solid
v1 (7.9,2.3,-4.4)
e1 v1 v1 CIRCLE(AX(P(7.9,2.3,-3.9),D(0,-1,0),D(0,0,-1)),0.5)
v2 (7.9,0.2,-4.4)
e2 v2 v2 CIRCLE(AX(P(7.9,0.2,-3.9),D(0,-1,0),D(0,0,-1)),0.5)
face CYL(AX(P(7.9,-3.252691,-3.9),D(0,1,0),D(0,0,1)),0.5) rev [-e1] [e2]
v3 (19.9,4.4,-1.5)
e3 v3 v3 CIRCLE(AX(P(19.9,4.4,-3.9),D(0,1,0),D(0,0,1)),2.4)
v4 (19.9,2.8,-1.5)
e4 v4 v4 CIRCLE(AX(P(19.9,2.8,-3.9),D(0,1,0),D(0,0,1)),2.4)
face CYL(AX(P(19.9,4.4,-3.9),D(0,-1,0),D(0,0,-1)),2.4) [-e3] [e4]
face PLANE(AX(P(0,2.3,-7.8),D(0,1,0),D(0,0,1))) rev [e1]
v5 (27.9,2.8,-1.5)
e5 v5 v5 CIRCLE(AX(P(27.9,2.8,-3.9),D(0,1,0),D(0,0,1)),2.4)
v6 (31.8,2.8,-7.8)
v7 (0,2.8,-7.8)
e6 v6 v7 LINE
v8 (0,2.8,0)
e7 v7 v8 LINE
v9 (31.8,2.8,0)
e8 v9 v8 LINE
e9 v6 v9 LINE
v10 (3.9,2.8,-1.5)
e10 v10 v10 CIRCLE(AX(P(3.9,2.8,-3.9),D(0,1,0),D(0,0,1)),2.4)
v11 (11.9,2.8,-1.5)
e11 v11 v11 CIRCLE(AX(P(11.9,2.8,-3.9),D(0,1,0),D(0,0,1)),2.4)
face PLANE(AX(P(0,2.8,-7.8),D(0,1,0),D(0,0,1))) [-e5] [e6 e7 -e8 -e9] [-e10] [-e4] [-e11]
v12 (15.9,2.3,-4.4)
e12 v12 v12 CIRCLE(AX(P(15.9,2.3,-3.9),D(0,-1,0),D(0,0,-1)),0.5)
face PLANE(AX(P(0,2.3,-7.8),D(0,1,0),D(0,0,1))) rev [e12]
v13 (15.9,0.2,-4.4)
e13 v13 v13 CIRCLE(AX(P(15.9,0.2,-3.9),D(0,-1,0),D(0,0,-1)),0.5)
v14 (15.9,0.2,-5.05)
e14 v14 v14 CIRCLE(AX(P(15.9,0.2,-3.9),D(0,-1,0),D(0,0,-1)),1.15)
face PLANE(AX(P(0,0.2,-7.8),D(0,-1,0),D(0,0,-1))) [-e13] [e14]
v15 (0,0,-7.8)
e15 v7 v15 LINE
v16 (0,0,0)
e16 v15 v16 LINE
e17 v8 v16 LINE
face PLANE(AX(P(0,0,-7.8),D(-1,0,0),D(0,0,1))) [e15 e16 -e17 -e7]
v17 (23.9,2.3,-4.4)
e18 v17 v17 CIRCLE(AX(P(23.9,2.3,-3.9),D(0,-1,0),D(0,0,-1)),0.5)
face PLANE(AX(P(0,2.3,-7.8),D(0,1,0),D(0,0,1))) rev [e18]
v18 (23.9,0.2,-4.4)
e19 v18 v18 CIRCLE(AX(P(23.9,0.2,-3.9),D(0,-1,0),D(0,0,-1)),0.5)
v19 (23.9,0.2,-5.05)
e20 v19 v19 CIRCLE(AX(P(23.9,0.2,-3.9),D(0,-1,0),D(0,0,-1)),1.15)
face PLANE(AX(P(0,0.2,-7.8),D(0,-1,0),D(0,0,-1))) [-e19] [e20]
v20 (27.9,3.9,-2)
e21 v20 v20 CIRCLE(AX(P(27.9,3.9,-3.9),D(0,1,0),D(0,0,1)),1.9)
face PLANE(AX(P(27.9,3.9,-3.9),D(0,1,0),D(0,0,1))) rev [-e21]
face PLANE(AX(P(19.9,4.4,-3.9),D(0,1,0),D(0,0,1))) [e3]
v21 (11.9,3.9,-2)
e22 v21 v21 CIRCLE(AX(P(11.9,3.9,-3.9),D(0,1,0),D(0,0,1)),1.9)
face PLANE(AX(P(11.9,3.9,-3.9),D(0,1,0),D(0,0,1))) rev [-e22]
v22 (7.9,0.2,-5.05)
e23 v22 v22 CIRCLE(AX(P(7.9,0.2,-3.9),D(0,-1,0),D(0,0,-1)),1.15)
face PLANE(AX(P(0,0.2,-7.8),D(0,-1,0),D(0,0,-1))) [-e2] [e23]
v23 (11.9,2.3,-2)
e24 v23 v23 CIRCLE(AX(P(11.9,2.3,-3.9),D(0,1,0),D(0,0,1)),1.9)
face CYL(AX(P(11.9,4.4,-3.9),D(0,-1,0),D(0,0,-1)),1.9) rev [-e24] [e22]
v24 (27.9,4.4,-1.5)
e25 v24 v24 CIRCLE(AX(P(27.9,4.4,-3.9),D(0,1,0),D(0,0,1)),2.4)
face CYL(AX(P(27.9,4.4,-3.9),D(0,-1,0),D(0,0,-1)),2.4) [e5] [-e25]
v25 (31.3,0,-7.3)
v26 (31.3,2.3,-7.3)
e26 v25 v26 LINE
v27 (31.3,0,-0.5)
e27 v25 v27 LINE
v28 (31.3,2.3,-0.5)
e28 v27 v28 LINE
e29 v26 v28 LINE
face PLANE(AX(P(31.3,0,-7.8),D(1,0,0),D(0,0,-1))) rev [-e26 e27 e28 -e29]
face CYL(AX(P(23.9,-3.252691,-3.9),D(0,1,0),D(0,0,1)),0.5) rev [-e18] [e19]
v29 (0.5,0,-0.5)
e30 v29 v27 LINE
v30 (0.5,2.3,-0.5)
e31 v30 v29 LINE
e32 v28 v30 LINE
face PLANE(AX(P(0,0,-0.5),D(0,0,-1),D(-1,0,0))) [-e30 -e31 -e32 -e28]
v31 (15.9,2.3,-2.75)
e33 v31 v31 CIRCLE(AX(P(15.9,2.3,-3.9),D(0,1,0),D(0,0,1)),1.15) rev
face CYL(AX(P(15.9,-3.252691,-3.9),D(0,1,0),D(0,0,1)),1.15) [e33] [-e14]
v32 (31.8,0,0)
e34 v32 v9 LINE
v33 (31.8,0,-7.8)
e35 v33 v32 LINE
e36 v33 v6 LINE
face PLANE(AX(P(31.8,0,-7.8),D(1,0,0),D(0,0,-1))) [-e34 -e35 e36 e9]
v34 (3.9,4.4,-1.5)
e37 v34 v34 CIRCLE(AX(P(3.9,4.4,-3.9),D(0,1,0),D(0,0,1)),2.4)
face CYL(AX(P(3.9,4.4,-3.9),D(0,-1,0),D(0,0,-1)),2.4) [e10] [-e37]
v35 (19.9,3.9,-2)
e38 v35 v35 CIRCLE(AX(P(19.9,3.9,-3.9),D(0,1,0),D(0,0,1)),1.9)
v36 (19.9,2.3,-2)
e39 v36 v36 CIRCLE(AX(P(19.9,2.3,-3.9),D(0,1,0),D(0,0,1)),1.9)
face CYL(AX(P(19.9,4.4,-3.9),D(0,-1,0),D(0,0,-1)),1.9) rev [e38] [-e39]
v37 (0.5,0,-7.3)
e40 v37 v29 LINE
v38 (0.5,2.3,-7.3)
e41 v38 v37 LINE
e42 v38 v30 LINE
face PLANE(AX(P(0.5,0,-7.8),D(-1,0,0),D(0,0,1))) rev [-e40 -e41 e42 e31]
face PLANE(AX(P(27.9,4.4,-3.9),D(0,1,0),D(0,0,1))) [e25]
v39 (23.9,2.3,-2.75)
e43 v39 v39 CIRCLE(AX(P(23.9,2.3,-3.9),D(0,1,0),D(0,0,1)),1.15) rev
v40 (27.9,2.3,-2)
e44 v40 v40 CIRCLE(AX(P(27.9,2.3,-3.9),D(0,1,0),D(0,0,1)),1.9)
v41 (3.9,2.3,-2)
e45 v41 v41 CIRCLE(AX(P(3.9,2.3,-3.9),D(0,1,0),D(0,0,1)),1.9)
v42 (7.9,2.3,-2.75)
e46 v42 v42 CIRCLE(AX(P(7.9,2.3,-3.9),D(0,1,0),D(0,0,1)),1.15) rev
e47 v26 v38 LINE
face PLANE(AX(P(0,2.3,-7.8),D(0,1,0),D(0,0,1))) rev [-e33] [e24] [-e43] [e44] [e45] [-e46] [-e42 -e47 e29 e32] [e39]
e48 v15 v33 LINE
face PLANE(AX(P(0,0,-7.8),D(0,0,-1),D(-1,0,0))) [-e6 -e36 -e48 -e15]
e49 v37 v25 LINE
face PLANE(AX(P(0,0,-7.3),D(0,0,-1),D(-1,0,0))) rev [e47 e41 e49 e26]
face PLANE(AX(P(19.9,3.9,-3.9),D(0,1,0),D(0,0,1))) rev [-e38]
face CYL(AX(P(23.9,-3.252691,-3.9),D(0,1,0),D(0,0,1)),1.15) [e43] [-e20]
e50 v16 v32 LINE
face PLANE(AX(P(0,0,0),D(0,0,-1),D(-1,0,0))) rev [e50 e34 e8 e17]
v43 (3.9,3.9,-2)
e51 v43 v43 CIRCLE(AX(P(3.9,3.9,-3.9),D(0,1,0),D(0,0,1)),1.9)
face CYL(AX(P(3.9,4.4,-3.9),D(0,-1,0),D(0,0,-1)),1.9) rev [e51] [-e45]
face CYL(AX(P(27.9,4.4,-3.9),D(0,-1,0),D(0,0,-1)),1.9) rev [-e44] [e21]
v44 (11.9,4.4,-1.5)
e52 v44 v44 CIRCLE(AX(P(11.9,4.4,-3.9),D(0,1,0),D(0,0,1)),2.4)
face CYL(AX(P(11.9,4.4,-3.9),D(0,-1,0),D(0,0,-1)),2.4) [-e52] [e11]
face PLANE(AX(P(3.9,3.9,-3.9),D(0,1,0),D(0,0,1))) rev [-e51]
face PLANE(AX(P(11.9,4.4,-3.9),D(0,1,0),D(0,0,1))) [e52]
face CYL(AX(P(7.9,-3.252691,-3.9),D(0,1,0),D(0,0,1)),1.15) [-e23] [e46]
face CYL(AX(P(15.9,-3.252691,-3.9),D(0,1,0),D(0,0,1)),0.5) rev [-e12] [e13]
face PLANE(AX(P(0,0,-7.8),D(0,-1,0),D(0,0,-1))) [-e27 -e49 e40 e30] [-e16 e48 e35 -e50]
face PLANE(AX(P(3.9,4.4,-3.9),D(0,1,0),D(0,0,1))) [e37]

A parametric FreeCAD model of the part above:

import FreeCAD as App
import Part
import Sketcher
Q = App.Units.Quantity


def faces_at(feature, points):
    """Names of the faces that lie closest to the given points."""
    faces = feature.Shape.Faces
    near = lambda p: min(range(len(faces)), key=lambda i: faces[i].distToShape(Part.Vertex(*p))[0])
    return sorted({f"Face{near(p) + 1}" for p in points})


def add_polygon(sketch, points):
    """Adds a closed chain of lines whose ends are joined by coincident constraints."""
    first, n = sketch.GeometryCount, len(points)
    for a, b in zip(points, points[1:] + points[:1]):
        sketch.addGeometry(Part.LineSegment(App.Vector(*a, 0), App.Vector(*b, 0)), False)
    for i in range(n):
        sketch.addConstraint(Sketcher.Constraint("Coincident", first + i, 2, first + (i + 1) % n, 1))

doc = App.newDocument("Part")
body = doc.addObject("PartDesign::Body", "Body")

sketch1 = body.newObject("Sketcher::SketchObject", "Sketch")
sketch1.AttachmentSupport = (doc.getObject("XY_Plane"), [""])
sketch1.MapMode = "FlatFace"
add_polygon(sketch1, [(0, 2.8), (0, 0), (31.8, 0), (31.8, 2.8)])
sketch1.addConstraint([
    Sketcher.Constraint("Vertical", 0),
    Sketcher.Constraint("Horizontal", 1),
    Sketcher.Constraint("Vertical", 2),
    Sketcher.Constraint("Horizontal", 3),
    Sketcher.Constraint("Coincident", 0, 2, -1, 1),
    Sketcher.Constraint("DistanceX", 1, 1, 1, 2, Q("31.8 mm")),
    Sketcher.Constraint("DistanceY", 0, 2, 0, 1, Q("2.8 mm")),
])
pad1 = body.newObject("PartDesign::Pad", "Pad")
pad1.Profile = sketch1
pad1.Length = 7.8
pad1.Reversed = True

sketch2 = body.newObject("Sketcher::SketchObject", "Sketch001")
sketch2.AttachmentSupport = (doc.getObject("XZ_Plane"), [""])
sketch2.MapMode = "FlatFace"
sketch2.AttachmentOffset = App.Placement(App.Vector(0, 0, -2.8), App.Rotation())
sketch2.addGeometry(Part.Circle(App.Vector(3.9, -3.9, 0), App.Vector(0, 0, 1), 2.4), False)
sketch2.addConstraint([
    Sketcher.Constraint("Diameter", 0, Q("4.8 mm")),
    Sketcher.Constraint("DistanceX", -1, 1, 0, 3, Q("3.9 mm")),
    Sketcher.Constraint("DistanceY", 0, 3, -1, 1, Q("3.9 mm")),
])
pad2 = body.newObject("PartDesign::Pad", "Pad001")
pad2.Profile = sketch2
pad2.Length = 1.6
pad2.Reversed = True
doc.recompute()

linearpattern = body.newObject("PartDesign::LinearPattern", "LinearPattern")
linearpattern.Originals = [pad2]
linearpattern.Direction = (doc.getObject("X_Axis"), [""])
linearpattern.Mode = "offset"
linearpattern.Offset = 8
linearpattern.Occurrences = 4
body.Tip = linearpattern
doc.recompute()

thickness = body.newObject("PartDesign::Thickness", "Thickness")
thickness.Base = (linearpattern, faces_at(linearpattern, [(15.9, 0, -3.9)]))
thickness.Value = 0.5
thickness.Reversed = True
thickness.Join = "Intersection"

sketch3 = body.newObject("Sketcher::SketchObject", "Sketch002")
sketch3.AttachmentSupport = (doc.getObject("XZ_Plane"), [""])
sketch3.MapMode = "FlatFace"
sketch3.AttachmentOffset = App.Placement(App.Vector(0, 0, -2.3), App.Rotation())
sketch3.addGeometry([
    Part.Circle(App.Vector(7.9, -3.9, 0), App.Vector(0, 0, 1), 1.15),
    Part.Circle(App.Vector(7.9, -3.9, 0), App.Vector(0, 0, 1), 0.5),
], False)
sketch3.addConstraint([
    Sketcher.Constraint("Coincident", 1, 3, 0, 3),
    Sketcher.Constraint("Diameter", 1, Q("1 mm")),
    Sketcher.Constraint("Diameter", 0, Q("2.3 mm")),
    Sketcher.Constraint("DistanceX", -1, 1, 0, 3, Q("7.9 mm")),
    Sketcher.Constraint("DistanceY", 0, 3, -1, 1, Q("3.9 mm")),
])
pad3 = body.newObject("PartDesign::Pad", "Pad002")
pad3.Profile = sketch3
pad3.Length = 2.1
doc.recompute()

linearpattern2 = body.newObject("PartDesign::LinearPattern", "LinearPattern001")
linearpattern2.Originals = [pad3]
linearpattern2.Direction = (doc.getObject("X_Axis"), [""])
linearpattern2.Mode = "offset"
linearpattern2.Offset = 8
linearpattern2.Occurrences = 3
body.Tip = linearpattern2

doc.recompute()
